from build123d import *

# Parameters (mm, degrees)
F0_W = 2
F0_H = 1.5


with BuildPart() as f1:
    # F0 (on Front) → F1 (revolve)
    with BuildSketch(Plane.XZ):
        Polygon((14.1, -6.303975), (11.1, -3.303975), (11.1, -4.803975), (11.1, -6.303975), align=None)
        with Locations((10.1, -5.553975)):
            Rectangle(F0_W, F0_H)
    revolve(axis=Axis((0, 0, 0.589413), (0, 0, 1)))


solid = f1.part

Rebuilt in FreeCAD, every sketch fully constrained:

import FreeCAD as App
import Part
import Sketcher
from FreeCAD import Vector
Q = App.Units.Quantity


def add_polygon(sketch, points):
    """Adds a closed chain of lines whose ends are joined by coincident constraints."""
    first, n = sketch.GeometryCount, len(points)
    for a, b in zip(points, points[1:] + points[:1]):
        sketch.addGeometry(Part.LineSegment(App.Vector(*a, 0), App.Vector(*b, 0)), False)
    for i in range(n):
        sketch.addConstraint(Sketcher.Constraint("Coincident", first + i, 2, first + (i + 1) % n, 1))

doc = App.newDocument("Part")
body = doc.addObject("PartDesign::Body", "Body")

# Sketch on XZ plane
sketch1 = body.newObject("Sketcher::SketchObject", "Sketch")
sketch1.AttachmentSupport = (doc.getObject("XZ_Plane"), [""])
sketch1.MapMode = "FlatFace"
add_polygon(sketch1, [(14.1, -6.3), (11.1, -3.3), (11.1, -4.8), (9.1, -4.8), (9.1, -6.3)])  # lines 0-4
sketch1.addConstraint([
    Sketcher.Constraint("Vertical", 1),
    Sketcher.Constraint("Horizontal", 2),
    Sketcher.Constraint("Vertical", 3),
    Sketcher.Constraint("Horizontal", 4),
    Sketcher.Constraint("Equal", 1, 3),
    Sketcher.Constraint("DistanceX", 2, 2, 2, 1, 2.0),
    Sketcher.Constraint("DistanceX", 4, 1, 4, 2, 5.0),
    Sketcher.Constraint("Angle", 0, Q("135 deg")),
    Sketcher.Constraint("DistanceX", -1, 1, 0, 2, 11.1),
    Sketcher.Constraint("DistanceY", 0, 2, -1, 1, 3.303975),
])
revolution = body.newObject("PartDesign::Revolution", "Revolution")
revolution.Profile = sketch1
revolution.ReferenceAxis = (sketch1, ["V_Axis"])
revolution.Angle = 360

doc.recompute()
